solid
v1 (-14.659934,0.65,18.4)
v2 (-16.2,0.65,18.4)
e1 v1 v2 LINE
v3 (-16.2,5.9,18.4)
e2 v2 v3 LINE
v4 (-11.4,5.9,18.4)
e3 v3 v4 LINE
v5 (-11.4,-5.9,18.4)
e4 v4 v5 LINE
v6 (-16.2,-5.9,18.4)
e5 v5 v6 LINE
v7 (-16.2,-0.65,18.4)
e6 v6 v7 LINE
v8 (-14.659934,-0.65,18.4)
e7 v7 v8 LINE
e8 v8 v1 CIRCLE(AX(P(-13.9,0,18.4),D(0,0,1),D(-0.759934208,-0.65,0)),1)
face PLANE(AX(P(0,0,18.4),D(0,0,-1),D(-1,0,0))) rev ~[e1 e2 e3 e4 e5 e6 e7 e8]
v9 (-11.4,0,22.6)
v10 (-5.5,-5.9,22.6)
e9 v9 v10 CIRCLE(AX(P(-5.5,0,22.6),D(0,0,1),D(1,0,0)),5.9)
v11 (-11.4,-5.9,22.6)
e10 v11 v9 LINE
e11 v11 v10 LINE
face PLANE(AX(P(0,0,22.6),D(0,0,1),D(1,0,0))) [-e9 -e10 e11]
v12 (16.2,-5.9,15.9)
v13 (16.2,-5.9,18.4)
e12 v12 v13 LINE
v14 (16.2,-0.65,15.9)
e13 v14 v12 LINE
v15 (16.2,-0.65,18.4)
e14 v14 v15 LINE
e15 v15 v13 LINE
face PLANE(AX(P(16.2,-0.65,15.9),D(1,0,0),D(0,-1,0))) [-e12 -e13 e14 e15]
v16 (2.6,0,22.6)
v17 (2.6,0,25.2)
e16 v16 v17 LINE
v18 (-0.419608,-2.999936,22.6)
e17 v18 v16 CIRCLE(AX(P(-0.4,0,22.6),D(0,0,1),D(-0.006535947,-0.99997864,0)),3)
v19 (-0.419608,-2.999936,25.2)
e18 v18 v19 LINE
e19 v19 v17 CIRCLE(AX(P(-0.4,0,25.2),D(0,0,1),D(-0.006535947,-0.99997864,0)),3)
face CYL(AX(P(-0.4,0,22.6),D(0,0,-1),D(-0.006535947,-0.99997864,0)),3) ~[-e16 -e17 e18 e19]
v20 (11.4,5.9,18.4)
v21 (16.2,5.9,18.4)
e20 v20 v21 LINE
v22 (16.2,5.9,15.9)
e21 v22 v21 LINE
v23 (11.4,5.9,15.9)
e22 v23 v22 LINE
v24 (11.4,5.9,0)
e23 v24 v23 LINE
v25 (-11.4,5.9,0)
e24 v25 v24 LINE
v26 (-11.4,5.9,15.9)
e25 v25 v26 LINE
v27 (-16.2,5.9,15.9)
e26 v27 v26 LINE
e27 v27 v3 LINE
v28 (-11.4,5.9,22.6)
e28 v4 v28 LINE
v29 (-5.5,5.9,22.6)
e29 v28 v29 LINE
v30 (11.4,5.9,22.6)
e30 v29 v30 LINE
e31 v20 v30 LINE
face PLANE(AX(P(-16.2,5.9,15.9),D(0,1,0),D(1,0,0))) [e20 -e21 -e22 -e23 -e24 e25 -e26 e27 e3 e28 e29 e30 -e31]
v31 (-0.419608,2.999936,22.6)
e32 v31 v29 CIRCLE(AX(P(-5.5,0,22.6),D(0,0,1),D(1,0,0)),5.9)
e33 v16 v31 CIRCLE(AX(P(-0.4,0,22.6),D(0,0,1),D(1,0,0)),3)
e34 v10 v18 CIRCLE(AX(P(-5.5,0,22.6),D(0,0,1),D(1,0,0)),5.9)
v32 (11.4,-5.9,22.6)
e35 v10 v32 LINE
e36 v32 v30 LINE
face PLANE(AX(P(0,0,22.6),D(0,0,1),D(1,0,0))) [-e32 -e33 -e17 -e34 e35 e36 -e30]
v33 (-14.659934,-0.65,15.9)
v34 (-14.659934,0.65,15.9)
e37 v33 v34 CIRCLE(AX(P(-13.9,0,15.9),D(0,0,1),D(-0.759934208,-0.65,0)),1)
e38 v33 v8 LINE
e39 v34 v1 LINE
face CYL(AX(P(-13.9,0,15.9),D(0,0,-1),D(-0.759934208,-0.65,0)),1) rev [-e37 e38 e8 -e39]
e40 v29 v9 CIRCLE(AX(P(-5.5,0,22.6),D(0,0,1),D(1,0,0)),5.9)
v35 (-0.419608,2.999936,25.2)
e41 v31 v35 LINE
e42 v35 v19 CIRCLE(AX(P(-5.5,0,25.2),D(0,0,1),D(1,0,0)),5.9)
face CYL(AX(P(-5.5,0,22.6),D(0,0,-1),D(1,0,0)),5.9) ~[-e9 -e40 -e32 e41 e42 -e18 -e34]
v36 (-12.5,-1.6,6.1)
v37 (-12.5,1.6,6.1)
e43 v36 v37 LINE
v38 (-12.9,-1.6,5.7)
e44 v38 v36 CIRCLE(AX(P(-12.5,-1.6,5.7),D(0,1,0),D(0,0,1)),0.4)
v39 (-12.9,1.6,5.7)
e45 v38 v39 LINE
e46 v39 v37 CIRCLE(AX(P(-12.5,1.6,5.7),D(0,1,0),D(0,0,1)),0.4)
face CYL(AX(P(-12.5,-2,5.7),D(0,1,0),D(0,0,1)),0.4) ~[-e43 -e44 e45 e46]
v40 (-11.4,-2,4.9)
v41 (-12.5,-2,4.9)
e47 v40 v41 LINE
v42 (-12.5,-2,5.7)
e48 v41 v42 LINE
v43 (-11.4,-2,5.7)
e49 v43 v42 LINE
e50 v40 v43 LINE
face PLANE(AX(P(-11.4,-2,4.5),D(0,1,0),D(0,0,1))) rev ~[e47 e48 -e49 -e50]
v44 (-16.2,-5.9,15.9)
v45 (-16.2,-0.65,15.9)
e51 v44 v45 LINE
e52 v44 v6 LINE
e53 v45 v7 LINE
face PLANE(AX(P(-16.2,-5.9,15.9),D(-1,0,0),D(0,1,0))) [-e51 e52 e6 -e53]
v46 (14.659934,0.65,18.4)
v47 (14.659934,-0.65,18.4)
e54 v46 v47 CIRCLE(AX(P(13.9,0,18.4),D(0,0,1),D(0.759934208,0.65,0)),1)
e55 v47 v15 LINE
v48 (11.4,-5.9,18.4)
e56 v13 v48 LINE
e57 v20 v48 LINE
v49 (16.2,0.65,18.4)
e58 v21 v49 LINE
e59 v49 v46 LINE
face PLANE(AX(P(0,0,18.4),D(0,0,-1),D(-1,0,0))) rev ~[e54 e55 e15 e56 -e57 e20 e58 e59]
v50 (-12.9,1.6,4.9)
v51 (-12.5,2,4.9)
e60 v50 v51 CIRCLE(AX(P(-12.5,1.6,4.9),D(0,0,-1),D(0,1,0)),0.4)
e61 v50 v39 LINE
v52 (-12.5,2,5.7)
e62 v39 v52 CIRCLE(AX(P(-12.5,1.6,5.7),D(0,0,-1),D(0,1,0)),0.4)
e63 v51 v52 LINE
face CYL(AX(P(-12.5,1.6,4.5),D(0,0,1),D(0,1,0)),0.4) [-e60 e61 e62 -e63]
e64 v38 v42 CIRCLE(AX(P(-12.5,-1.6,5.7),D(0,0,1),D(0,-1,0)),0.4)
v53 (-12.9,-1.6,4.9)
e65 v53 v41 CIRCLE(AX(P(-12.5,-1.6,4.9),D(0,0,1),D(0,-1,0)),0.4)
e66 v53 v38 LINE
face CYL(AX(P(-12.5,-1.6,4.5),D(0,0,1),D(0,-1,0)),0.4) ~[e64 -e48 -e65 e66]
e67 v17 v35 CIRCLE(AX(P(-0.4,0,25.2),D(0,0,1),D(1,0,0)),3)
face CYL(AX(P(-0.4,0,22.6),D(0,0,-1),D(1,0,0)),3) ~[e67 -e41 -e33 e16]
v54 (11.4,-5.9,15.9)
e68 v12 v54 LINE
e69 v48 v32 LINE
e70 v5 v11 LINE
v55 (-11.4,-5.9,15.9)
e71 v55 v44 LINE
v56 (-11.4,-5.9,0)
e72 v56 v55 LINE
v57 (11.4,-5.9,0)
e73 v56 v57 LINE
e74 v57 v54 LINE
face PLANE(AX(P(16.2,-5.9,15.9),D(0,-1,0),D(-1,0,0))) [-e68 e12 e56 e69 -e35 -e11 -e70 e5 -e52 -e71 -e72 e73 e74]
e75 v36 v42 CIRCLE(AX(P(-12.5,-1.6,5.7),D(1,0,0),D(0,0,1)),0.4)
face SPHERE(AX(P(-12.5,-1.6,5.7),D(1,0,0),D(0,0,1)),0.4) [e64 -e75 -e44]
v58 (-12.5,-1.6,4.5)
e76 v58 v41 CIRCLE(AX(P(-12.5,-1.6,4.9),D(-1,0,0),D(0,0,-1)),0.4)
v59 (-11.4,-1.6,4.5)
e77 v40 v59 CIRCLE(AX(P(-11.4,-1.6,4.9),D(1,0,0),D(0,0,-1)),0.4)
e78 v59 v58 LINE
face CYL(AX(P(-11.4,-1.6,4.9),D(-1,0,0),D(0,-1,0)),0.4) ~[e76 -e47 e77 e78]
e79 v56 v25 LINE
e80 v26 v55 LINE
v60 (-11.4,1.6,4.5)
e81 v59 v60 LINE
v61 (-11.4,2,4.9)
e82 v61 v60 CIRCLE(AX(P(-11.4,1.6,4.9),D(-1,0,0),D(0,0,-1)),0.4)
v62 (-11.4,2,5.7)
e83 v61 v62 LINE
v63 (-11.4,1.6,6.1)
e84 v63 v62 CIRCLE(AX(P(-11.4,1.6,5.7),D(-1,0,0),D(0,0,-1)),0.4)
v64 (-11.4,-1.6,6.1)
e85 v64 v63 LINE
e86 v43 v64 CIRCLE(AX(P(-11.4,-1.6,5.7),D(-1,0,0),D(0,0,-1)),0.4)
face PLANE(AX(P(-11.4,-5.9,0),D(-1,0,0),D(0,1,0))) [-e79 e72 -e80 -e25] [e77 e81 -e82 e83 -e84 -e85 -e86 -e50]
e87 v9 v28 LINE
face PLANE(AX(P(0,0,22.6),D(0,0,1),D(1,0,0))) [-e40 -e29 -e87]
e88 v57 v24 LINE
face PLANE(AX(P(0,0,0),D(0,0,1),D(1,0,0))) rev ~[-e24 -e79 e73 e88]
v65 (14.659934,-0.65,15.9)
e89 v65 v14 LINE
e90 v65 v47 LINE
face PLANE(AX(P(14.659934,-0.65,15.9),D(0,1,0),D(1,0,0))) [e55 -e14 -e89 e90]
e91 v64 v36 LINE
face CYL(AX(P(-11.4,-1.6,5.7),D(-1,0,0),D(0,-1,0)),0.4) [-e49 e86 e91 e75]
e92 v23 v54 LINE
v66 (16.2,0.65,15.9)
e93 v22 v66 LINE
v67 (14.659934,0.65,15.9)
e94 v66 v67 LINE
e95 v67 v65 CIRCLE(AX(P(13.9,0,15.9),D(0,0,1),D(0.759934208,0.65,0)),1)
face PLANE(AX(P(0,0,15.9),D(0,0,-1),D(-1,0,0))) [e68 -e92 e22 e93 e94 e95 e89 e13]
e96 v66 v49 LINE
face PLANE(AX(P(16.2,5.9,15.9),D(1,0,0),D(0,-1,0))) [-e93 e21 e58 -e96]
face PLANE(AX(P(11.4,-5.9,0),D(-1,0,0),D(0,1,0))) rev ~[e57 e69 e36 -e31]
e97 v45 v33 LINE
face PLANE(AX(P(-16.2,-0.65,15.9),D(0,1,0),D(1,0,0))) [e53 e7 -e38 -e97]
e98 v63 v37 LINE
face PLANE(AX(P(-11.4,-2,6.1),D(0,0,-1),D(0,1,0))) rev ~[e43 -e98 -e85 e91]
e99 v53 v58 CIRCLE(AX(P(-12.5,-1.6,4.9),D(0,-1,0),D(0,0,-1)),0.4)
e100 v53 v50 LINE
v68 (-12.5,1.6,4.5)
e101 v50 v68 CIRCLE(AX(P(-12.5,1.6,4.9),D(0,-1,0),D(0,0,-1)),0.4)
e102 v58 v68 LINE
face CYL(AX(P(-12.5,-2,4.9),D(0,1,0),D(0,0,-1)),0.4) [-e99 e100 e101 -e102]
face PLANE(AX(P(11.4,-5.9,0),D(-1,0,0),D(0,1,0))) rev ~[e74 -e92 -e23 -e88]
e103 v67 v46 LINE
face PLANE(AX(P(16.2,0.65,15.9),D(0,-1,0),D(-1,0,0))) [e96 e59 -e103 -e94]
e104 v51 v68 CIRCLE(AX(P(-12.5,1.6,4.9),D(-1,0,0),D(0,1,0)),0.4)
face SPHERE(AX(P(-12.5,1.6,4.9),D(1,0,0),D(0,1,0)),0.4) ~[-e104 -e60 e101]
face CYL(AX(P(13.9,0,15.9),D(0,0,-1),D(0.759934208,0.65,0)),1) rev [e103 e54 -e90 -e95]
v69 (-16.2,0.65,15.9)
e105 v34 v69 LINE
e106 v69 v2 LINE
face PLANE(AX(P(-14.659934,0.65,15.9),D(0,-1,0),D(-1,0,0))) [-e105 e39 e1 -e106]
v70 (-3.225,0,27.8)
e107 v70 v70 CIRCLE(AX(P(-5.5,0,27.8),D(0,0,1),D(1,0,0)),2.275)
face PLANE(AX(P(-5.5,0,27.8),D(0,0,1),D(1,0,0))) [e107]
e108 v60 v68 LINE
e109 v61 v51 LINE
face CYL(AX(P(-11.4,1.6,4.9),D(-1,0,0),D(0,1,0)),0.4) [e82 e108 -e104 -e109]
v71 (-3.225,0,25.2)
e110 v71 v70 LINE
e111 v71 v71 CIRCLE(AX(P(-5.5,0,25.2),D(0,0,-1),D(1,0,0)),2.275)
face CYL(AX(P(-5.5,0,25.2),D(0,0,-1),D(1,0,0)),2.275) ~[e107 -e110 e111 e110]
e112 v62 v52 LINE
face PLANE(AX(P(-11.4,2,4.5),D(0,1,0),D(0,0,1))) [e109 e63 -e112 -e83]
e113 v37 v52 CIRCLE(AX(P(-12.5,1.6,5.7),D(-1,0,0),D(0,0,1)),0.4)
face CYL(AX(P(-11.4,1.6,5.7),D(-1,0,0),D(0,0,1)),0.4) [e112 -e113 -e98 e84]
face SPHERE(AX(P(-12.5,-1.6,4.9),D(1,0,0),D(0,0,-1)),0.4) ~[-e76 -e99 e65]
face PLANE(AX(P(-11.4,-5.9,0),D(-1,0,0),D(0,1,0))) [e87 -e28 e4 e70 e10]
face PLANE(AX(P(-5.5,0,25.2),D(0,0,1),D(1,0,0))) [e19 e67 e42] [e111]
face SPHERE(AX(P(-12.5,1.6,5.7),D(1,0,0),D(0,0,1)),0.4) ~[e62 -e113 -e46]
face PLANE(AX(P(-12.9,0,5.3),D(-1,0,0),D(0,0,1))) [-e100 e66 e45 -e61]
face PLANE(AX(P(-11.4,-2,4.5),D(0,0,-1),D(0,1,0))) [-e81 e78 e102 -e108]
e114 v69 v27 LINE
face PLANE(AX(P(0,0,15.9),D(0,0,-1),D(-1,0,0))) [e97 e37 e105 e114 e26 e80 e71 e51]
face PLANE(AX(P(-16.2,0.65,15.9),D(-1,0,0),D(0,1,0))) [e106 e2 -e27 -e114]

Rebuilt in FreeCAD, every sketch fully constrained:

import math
import FreeCAD as App
import Part
import Sketcher

V = App.Vector


def edges_at(feature, points):
    """Names of the edges that pass closest to the given points."""
    edges = feature.Shape.Edges
    near = lambda p: min(range(len(edges)), key=lambda i: edges[i].distToShape(Part.Vertex(*p))[0])
    return sorted({f"Edge{near(p) + 1}" for p in points})

doc = App.newDocument("Part")
body = doc.addObject("PartDesign::Body", "Body")

# Sketch on XY plane
sketch1 = body.newObject("Sketcher::SketchObject", "Sketch")
sketch1.AttachmentSupport = (doc.getObject("XY_Plane"), [""])
sketch1.MapMode = "FlatFace"
sketch1.addGeometry(Part.LineSegment(V(-11, 6, 0), V(-11, -6, 0)), False)
sketch1.addGeometry(Part.LineSegment(V(-11, -6, 0), V(11, -6, 0)), False)
sketch1.addGeometry(Part.LineSegment(V(11, -6, 0), V(11, 6, 0)), False)
sketch1.addGeometry(Part.LineSegment(V(11, 6, 0), V(-11, 6, 0)), False)
sketch1.addConstraint(Sketcher.Constraint("Coincident", 0, 2, 1, 1))
sketch1.addConstraint(Sketcher.Constraint("Coincident", 1, 2, 2, 1))
sketch1.addConstraint(Sketcher.Constraint("Coincident", 2, 2, 3, 1))
sketch1.addConstraint(Sketcher.Constraint("Coincident", 3, 2, 0, 1))
sketch1.addConstraint(Sketcher.Constraint("Vertical", 0))
sketch1.addConstraint(Sketcher.Constraint("Horizontal", 1))
sketch1.addConstraint(Sketcher.Constraint("Vertical", 2))
sketch1.addConstraint(Sketcher.Constraint("Horizontal", 3))
sketch1.addConstraint(Sketcher.Constraint("Symmetric", 0, 2, 2, 2, -1, 1))
sketch1.addConstraint(Sketcher.Constraint("DistanceX", 1, 1, 1, 2, 22.8))
sketch1.addConstraint(Sketcher.Constraint("DistanceY", 0, 2, 0, 1, 11.8))
pad1 = body.newObject("PartDesign::Pad", "Pad")
pad1.Profile = sketch1
pad1.Length = 22.6

# Sketch on XY plane
sketch2 = body.newObject("Sketcher::SketchObject", "Sketch001")
sketch2.AttachmentSupport = (doc.getObject("XY_Plane"), [""])
sketch2.MapMode = "FlatFace"
sketch2.AttachmentOffset = App.Placement(V(0, 0, 22.6), App.Rotation())
sketch2.addGeometry(Part.Circle(V(-6, 0, 0), V(0, 0, 1), 6), False)
sketch2.addConstraint(Sketcher.Constraint("PointOnObject", 0, 3, -1))
sketch2.addConstraint(Sketcher.Constraint("Diameter", 0, 11.8))
sketch2.addConstraint(Sketcher.Constraint("DistanceX", 0, 3, -1, 1, 5.5))
pad2 = body.newObject("PartDesign::Pad", "Pad001")
pad2.Profile = sketch2
pad2.Length = 2.6

# Sketch on XY plane
sketch3 = body.newObject("Sketcher::SketchObject", "Sketch002")
sketch3.AttachmentSupport = (doc.getObject("XY_Plane"), [""])
sketch3.MapMode = "FlatFace"
sketch3.AttachmentOffset = App.Placement(V(0, 0, 25.2), App.Rotation())
sketch3.addGeometry(Part.Circle(V(-5.5, 0, 0), V(0, 0, 1), 2.3), False)
sketch3.addConstraint(Sketcher.Constraint("PointOnObject", 0, 3, -1))
sketch3.addConstraint(Sketcher.Constraint("Diameter", 0, 4.55))
sketch3.addConstraint(Sketcher.Constraint("DistanceX", 0, 3, -1, 1, 5.5))
pad3 = body.newObject("PartDesign::Pad", "Pad002")
pad3.Profile = sketch3
pad3.Length = 2.6

# Sketch on XY plane
sketch4 = body.newObject("Sketcher::SketchObject", "Sketch003")
sketch4.AttachmentSupport = (doc.getObject("XY_Plane"), [""])
sketch4.MapMode = "FlatFace"
sketch4.AttachmentOffset = App.Placement(V(0, 0, 22.6), App.Rotation())
sketch4.addGeometry(Part.ArcOfCircle(Part.Circle(V(-0.4, 0, 0), V(0, 0, 1), 3), math.radians(90.374485), math.radians(269.625515)), False)
sketch4.addGeometry(Part.ArcOfCircle(Part.Circle(V(-0.4, 0, 0), V(0, 0, 1), 3), math.radians(-90.374485), math.radians(0)), False)
sketch4.addGeometry(Part.ArcOfCircle(Part.Circle(V(-0.4, 0, 0), V(0, 0, 1), 3), math.radians(0), math.radians(90.374485)), False)
sketch4.addConstraint(Sketcher.Constraint("Tangent", 0, 2, 1, 1))
sketch4.addConstraint(Sketcher.Constraint("Tangent", 1, 2, 2, 1))
sketch4.addConstraint(Sketcher.Constraint("Tangent", 2, 2, 0, 1))
sketch4.addConstraint(Sketcher.Constraint("Symmetric", 0, 2, 2, 2, -1))
sketch4.addConstraint(Sketcher.Constraint("PointOnObject", 1, 2, -1))
sketch4.addConstraint(Sketcher.Constraint("Radius", 0, 3.0))
sketch4.addConstraint(Sketcher.Constraint("DistanceX", 0, 3, -1, 1, 0.4))
sketch4.addConstraint(Sketcher.Constraint("DistanceY", 0, 2, 2, 2, 5.999872))
pad4 = body.newObject("PartDesign::Pad", "Pad003")
pad4.Profile = sketch4
pad4.Length = 2.6

# Sketch on XY plane
sketch5 = body.newObject("Sketcher::SketchObject", "Sketch004")
sketch5.AttachmentSupport = (doc.getObject("XY_Plane"), [""])
sketch5.MapMode = "FlatFace"
sketch5.AttachmentOffset = App.Placement(V(0, 0, 15.9), App.Rotation())
sketch5.addGeometry(Part.LineSegment(V(-16.2, 5.9, 0), V(16.2, 5.9, 0)), False)
sketch5.addGeometry(Part.LineSegment(V(16.2, 5.9, 0), V(16.2, 0.7, 0)), False)
sketch5.addGeometry(Part.LineSegment(V(16.2, 0.7, 0), V(14.7, 0.7, 0)), False)
sketch5.addGeometry(Part.ArcOfCircle(Part.Circle(V(13.9, 0, 0), V(0, 0, 1), 1), math.radians(41), math.radians(319)), False)
sketch5.addGeometry(Part.LineSegment(V(14.7, -0.7, 0), V(16.2, -0.7, 0)), False)
sketch5.addGeometry(Part.LineSegment(V(16.2, -0.7, 0), V(16.2, -5.9, 0)), False)
sketch5.addGeometry(Part.LineSegment(V(16.2, -5.9, 0), V(-16.2, -5.9, 0)), False)
sketch5.addGeometry(Part.LineSegment(V(-16.2, -5.9, 0), V(-16.2, -0.7, 0)), False)
sketch5.addGeometry(Part.LineSegment(V(-16.2, -0.7, 0), V(-14.7, -0.7, 0)), False)
sketch5.addGeometry(Part.ArcOfCircle(Part.Circle(V(-13.9, 0, 0), V(0, 0, 1), 1), math.radians(-139), math.radians(139)), False)
sketch5.addGeometry(Part.LineSegment(V(-14.7, 0.7, 0), V(-16.2, 0.7, 0)), False)
sketch5.addGeometry(Part.LineSegment(V(-16.2, 0.7, 0), V(-16.2, 5.9, 0)), False)
sketch5.addConstraint(Sketcher.Constraint("Coincident", 0, 2, 1, 1))
sketch5.addConstraint(Sketcher.Constraint("Coincident", 1, 2, 2, 1))
sketch5.addConstraint(Sketcher.Constraint("Coincident", 2, 2, 3, 1))
sketch5.addConstraint(Sketcher.Constraint("Coincident", 3, 2, 4, 1))
sketch5.addConstraint(Sketcher.Constraint("Coincident", 4, 2, 5, 1))
sketch5.addConstraint(Sketcher.Constraint("Coincident", 5, 2, 6, 1))
sketch5.addConstraint(Sketcher.Constraint("Coincident", 6, 2, 7, 1))
sketch5.addConstraint(Sketcher.Constraint("Coincident", 7, 2, 8, 1))
sketch5.addConstraint(Sketcher.Constraint("Coincident", 8, 2, 9, 1))
sketch5.addConstraint(Sketcher.Constraint("Coincident", 9, 2, 10, 1))
sketch5.addConstraint(Sketcher.Constraint("Coincident", 10, 2, 11, 1))
sketch5.addConstraint(Sketcher.Constraint("Coincident", 11, 2, 0, 1))
sketch5.addConstraint(Sketcher.Constraint("Horizontal", 0))
sketch5.addConstraint(Sketcher.Constraint("Vertical", 1))
sketch5.addConstraint(Sketcher.Constraint("Horizontal", 2))
sketch5.addConstraint(Sketcher.Constraint("Horizontal", 4))
sketch5.addConstraint(Sketcher.Constraint("Vertical", 5))
sketch5.addConstraint(Sketcher.Constraint("Horizontal", 6))
sketch5.addConstraint(Sketcher.Constraint("Vertical", 7))
sketch5.addConstraint(Sketcher.Constraint("Horizontal", 8))
sketch5.addConstraint(Sketcher.Constraint("Horizontal", 10))
sketch5.addConstraint(Sketcher.Constraint("Vertical", 11))
sketch5.addConstraint(Sketcher.Constraint("Equal", 3, 9))
sketch5.addConstraint(Sketcher.Constraint("Symmetric", 3, 3, 9, 3, -1, 1))
sketch5.addConstraint(Sketcher.Constraint("Symmetric", 0, 2, 6, 2, -1, 1))
sketch5.addConstraint(Sketcher.Constraint("Symmetric", 4, 2, 10, 2, -1, 1))
sketch5.addConstraint(Sketcher.Constraint("Symmetric", 4, 2, 7, 2, -2))
sketch5.addConstraint(Sketcher.Constraint("Symmetric", 2, 2, 9, 2, -2))
sketch5.addConstraint(Sketcher.Constraint("Radius", 3, 1.0))
sketch5.addConstraint(Sketcher.Constraint("DistanceX", 0, 1, 0, 2, 32.4))
sketch5.addConstraint(Sketcher.Constraint("DistanceY", 1, 2, 1, 1, 5.25))
sketch5.addConstraint(Sketcher.Constraint("DistanceX", -1, 1, 3, 3, 13.9))
sketch5.addConstraint(Sketcher.Constraint("DistanceY", -1, 1, 0, 2, 5.9))
pad5 = body.newObject("PartDesign::Pad", "Pad004")
pad5.Profile = sketch5
pad5.Length = 2.5

# Sketch on YZ plane
sketch6 = body.newObject("Sketcher::SketchObject", "Sketch005")
sketch6.AttachmentSupport = (doc.getObject("YZ_Plane"), [""])
sketch6.MapMode = "FlatFace"
sketch6.AttachmentOffset = App.Placement(V(0, 0, -11.4), App.Rotation())
sketch6.addGeometry(Part.LineSegment(V(2, 4.5, 0), V(-2, 4.5, 0)), False)
sketch6.addGeometry(Part.LineSegment(V(-2, 4.5, 0), V(-2, 6.1, 0)), False)
sketch6.addGeometry(Part.LineSegment(V(-2, 6.1, 0), V(2, 6.1, 0)), False)
sketch6.addGeometry(Part.LineSegment(V(2, 6.1, 0), V(2, 4.5, 0)), False)
sketch6.addConstraint(Sketcher.Constraint("Coincident", 0, 2, 1, 1))
sketch6.addConstraint(Sketcher.Constraint("Coincident", 1, 2, 2, 1))
sketch6.addConstraint(Sketcher.Constraint("Coincident", 2, 2, 3, 1))
sketch6.addConstraint(Sketcher.Constraint("Coincident", 3, 2, 0, 1))
sketch6.addConstraint(Sketcher.Constraint("Horizontal", 0))
sketch6.addConstraint(Sketcher.Constraint("Vertical", 1))
sketch6.addConstraint(Sketcher.Constraint("Horizontal", 2))
sketch6.addConstraint(Sketcher.Constraint("Vertical", 3))
sketch6.addConstraint(Sketcher.Constraint("DistanceX", 0, 2, 0, 1, 4.0))
sketch6.addConstraint(Sketcher.Constraint("DistanceY", 1, 1, 1, 2, 1.6))
sketch6.addConstraint(Sketcher.Constraint("DistanceX", 0, 2, -1, 1, 2.0))
sketch6.addConstraint(Sketcher.Constraint("DistanceY", -1, 1, 0, 2, 4.5))
pad6 = body.newObject("PartDesign::Pad", "Pad005")
pad6.Profile = sketch6
pad6.Length = 1.5
pad6.Reversed = True
doc.recompute()

fillet = body.newObject("PartDesign::Fillet", "Fillet")
fillet.Base = (pad6, edges_at(pad6, [
    (-12.15, -2, 6.1),
    (-12.15, 2, 6.1),
    (-12.15, 2, 4.5),
    (-12.15, -2, 4.5),
    (-12.9, 0, 6.1),
    (-12.9, 2, 5.3),
    (-12.9, 0, 4.5),
    (-12.9, -2, 5.3),
]))
fillet.Radius = 0.4

doc.recompute()
